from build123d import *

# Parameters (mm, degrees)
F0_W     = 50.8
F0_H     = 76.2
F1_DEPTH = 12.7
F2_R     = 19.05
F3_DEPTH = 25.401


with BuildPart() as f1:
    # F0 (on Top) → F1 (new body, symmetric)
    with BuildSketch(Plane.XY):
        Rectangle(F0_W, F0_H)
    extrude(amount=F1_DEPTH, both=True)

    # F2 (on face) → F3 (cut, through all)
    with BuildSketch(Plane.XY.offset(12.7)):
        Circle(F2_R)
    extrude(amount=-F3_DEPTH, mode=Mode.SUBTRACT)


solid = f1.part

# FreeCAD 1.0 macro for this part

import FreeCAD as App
import Part
import Sketcher
from FreeCAD import Vector
Q = App.Units.Quantity


def add_polygon(sketch, points):
    """Adds a closed chain of lines whose ends are joined by coincident constraints."""
    first, n = sketch.GeometryCount, len(points)
    for a, b in zip(points, points[1:] + points[:1]):
        sketch.addGeometry(Part.LineSegment(App.Vector(*a, 0), App.Vector(*b, 0)), False)
    for i in range(n):
        sketch.addConstraint(Sketcher.Constraint("Coincident", first + i, 2, first + (i + 1) % n, 1))

doc = App.newDocument("Part")
params = doc.addObject("Spreadsheet::Sheet", "Params")
for row, (alias, value) in enumerate([
    ("sketch1_width", "2 in"),
    ("sketch1_height", "3 in"),
    ("pad1_length", "1 in"),
    ("sketch2_diameter", "1.5 in"),
], start=1):
    params.set(f"A{row}", alias)
    params.set(f"B{row}", "=" + value)
    params.setAlias(f"B{row}", alias)

body = doc.addObject("PartDesign::Body", "Body")

# Sketch on XY plane
sketch1 = doc.addObject("Sketcher::SketchObject", "Sketch")
body.addObject(sketch1)
sketch1.AttachmentSupport = (doc.XY_Plane, [""])
sketch1.MapMode = "FlatFace"
add_polygon(sketch1, [(-25, 38), (-25, -38), (25, -38), (25, 38)])  # lines 0-3
sketch1.addConstraint([
    Sketcher.Constraint("Vertical", 0),
    Sketcher.Constraint("Horizontal", 1),
    Sketcher.Constraint("Vertical", 2),
    Sketcher.Constraint("Horizontal", 3),
    Sketcher.Constraint("Symmetric", 0, 2, 2, 2, -1, 1),
    Sketcher.Constraint("DistanceX", 1, 1, 1, 2, Q("2 in")),
    Sketcher.Constraint("DistanceY", 0, 2, 0, 1, Q("3 in")),
])
sketch1.setExpression("Constraints[9]", "Params.sketch1_width")
sketch1.setExpression("Constraints[10]", "Params.sketch1_height")
pad1 = doc.addObject("PartDesign::Pad", "Pad")
body.addObject(pad1)
pad1.Profile = sketch1
pad1.setExpression("Length", "Params.pad1_length")
pad1.Midplane = True

# Sketch on XY plane
sketch2 = doc.addObject("Sketcher::SketchObject", "Sketch001")
body.addObject(sketch2)
sketch2.AttachmentSupport = (doc.XY_Plane, [""])
sketch2.MapMode = "FlatFace"
sketch2.AttachmentOffset = App.Placement(Vector(0, 0, 0.5 * 25.4), App.Rotation())
sketch2.addGeometry(Part.Circle(Vector(0, 0, 0), Vector(0, 0, 1), 19), False)
sketch2.addConstraint([
    Sketcher.Constraint("Coincident", 0, 3, -1, 1),
    Sketcher.Constraint("Diameter", 0, Q("1.5 in")),
])
sketch2.setExpression("Constraints[1]", "Params.sketch2_diameter")
pocket1 = doc.addObject("PartDesign::Pocket", "Pocket")
body.addObject(pocket1)
pocket1.Profile = sketch2
pocket1.Type = "ThroughAll"

doc.recompute()
